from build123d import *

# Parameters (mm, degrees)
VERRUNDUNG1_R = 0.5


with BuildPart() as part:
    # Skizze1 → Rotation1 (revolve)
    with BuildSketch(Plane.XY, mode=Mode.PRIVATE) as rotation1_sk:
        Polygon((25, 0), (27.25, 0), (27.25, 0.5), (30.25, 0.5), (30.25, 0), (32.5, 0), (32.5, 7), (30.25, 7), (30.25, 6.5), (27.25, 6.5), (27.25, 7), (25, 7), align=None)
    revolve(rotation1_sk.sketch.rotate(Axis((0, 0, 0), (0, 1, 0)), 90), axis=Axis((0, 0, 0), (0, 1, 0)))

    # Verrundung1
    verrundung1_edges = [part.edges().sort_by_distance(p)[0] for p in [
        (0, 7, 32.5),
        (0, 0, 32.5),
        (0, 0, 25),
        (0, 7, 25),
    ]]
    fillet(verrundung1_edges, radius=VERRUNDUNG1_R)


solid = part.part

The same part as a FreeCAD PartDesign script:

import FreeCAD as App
import Part
import Sketcher

V = App.Vector
Q = App.Units.Quantity


def edges_at(feature, points):
    """Names of the edges that pass closest to the given points."""
    edges = feature.Shape.Edges
    near = lambda p: min(range(len(edges)), key=lambda i: edges[i].distToShape(Part.Vertex(*p))[0])
    return sorted({f"Edge{near(p) + 1}" for p in points})

doc = App.newDocument("Part")
body = doc.addObject("PartDesign::Body", "Body")

# Sketch on XY plane
sketch1 = body.newObject("Sketcher::SketchObject", "Sketch")
sketch1.AttachmentSupport = (doc.getObject("XY_Plane"), [""])
sketch1.MapMode = "FlatFace"
sketch1.addGeometry([
    Part.LineSegment(V(25, 0, 0), V(27.2, 0, 0)),  # 0
    Part.LineSegment(V(27.2, 0, 0), V(27.2, 0.5, 0)),  # 1
    Part.LineSegment(V(27.2, 0.5, 0), V(30.2, 0.5, 0)),  # 2
    Part.LineSegment(V(30.2, 0.5, 0), V(30.2, 0, 0)),  # 3
    Part.LineSegment(V(30.2, 0, 0), V(32.5, 0, 0)),  # 4
    Part.LineSegment(V(32.5, 0, 0), V(32.5, 7, 0)),  # 5
    Part.LineSegment(V(32.5, 7, 0), V(30.2, 7, 0)),  # 6
    Part.LineSegment(V(30.2, 7, 0), V(30.2, 6.5, 0)),  # 7
    Part.LineSegment(V(30.2, 6.5, 0), V(27.2, 6.5, 0)),  # 8
    Part.LineSegment(V(27.2, 6.5, 0), V(27.2, 7, 0)),  # 9
    Part.LineSegment(V(27.2, 7, 0), V(25, 7, 0)),  # 10
    Part.LineSegment(V(25, 7, 0), V(25, 0, 0)),  # 11
], False)
sketch1.addConstraint([
    Sketcher.Constraint("Coincident", 0, 2, 1, 1),
    Sketcher.Constraint("Coincident", 1, 2, 2, 1),
    Sketcher.Constraint("Coincident", 2, 2, 3, 1),
    Sketcher.Constraint("Coincident", 3, 2, 4, 1),
    Sketcher.Constraint("Coincident", 4, 2, 5, 1),
    Sketcher.Constraint("Coincident", 5, 2, 6, 1),
    Sketcher.Constraint("Coincident", 6, 2, 7, 1),
    Sketcher.Constraint("Coincident", 7, 2, 8, 1),
    Sketcher.Constraint("Coincident", 8, 2, 9, 1),
    Sketcher.Constraint("Coincident", 9, 2, 10, 1),
    Sketcher.Constraint("Coincident", 10, 2, 11, 1),
    Sketcher.Constraint("Coincident", 11, 2, 0, 1),
    Sketcher.Constraint("Horizontal", 0),
    Sketcher.Constraint("Vertical", 1),
    Sketcher.Constraint("Horizontal", 2),
    Sketcher.Constraint("Vertical", 3),
    Sketcher.Constraint("Horizontal", 4),
    Sketcher.Constraint("Vertical", 5),
    Sketcher.Constraint("Horizontal", 6),
    Sketcher.Constraint("Vertical", 7),
    Sketcher.Constraint("Horizontal", 8),
    Sketcher.Constraint("Vertical", 9),
    Sketcher.Constraint("Horizontal", 10),
    Sketcher.Constraint("Vertical", 11),
    Sketcher.Constraint("PointOnObject", 0, 2, -1),
    Sketcher.Constraint("PointOnObject", 3, 2, -1),
    Sketcher.Constraint("Horizontal", 6, 2, 9, 2),
    Sketcher.Constraint("Vertical", 3, 2, 6, 2),
    Sketcher.Constraint("Vertical", 1, 2, 8, 2),
    Sketcher.Constraint("Equal", 0, 4),
    Sketcher.Constraint("Equal", 3, 7),
    Sketcher.Constraint("DistanceX", 2, 1, 2, 2, Q("3 mm")),
    Sketcher.Constraint("DistanceY", 5, 1, 5, 2, Q("7 mm")),
    Sketcher.Constraint("DistanceY", 1, 1, 1, 2, Q("0.5 mm")),
    Sketcher.Constraint("DistanceX", -1, 1, 10, 2, Q("25 mm")),
    Sketcher.Constraint("DistanceX", 0, 1, 0, 2, Q("2.25 mm")),
])
revolution = body.newObject("PartDesign::Revolution", "Revolution")
revolution.Profile = sketch1
revolution.ReferenceAxis = (sketch1, ["V_Axis"])
revolution.Angle = 360
doc.recompute()

fillet = body.newObject("PartDesign::Fillet", "Fillet")
fillet.Base = (revolution, edges_at(revolution, [
    (0, 7, 32.5),
    (0, 0, 32.5),
    (0, 0, 25),
    (0, 7, 25),
]))
fillet.Radius = 0.5

doc.recompute()
